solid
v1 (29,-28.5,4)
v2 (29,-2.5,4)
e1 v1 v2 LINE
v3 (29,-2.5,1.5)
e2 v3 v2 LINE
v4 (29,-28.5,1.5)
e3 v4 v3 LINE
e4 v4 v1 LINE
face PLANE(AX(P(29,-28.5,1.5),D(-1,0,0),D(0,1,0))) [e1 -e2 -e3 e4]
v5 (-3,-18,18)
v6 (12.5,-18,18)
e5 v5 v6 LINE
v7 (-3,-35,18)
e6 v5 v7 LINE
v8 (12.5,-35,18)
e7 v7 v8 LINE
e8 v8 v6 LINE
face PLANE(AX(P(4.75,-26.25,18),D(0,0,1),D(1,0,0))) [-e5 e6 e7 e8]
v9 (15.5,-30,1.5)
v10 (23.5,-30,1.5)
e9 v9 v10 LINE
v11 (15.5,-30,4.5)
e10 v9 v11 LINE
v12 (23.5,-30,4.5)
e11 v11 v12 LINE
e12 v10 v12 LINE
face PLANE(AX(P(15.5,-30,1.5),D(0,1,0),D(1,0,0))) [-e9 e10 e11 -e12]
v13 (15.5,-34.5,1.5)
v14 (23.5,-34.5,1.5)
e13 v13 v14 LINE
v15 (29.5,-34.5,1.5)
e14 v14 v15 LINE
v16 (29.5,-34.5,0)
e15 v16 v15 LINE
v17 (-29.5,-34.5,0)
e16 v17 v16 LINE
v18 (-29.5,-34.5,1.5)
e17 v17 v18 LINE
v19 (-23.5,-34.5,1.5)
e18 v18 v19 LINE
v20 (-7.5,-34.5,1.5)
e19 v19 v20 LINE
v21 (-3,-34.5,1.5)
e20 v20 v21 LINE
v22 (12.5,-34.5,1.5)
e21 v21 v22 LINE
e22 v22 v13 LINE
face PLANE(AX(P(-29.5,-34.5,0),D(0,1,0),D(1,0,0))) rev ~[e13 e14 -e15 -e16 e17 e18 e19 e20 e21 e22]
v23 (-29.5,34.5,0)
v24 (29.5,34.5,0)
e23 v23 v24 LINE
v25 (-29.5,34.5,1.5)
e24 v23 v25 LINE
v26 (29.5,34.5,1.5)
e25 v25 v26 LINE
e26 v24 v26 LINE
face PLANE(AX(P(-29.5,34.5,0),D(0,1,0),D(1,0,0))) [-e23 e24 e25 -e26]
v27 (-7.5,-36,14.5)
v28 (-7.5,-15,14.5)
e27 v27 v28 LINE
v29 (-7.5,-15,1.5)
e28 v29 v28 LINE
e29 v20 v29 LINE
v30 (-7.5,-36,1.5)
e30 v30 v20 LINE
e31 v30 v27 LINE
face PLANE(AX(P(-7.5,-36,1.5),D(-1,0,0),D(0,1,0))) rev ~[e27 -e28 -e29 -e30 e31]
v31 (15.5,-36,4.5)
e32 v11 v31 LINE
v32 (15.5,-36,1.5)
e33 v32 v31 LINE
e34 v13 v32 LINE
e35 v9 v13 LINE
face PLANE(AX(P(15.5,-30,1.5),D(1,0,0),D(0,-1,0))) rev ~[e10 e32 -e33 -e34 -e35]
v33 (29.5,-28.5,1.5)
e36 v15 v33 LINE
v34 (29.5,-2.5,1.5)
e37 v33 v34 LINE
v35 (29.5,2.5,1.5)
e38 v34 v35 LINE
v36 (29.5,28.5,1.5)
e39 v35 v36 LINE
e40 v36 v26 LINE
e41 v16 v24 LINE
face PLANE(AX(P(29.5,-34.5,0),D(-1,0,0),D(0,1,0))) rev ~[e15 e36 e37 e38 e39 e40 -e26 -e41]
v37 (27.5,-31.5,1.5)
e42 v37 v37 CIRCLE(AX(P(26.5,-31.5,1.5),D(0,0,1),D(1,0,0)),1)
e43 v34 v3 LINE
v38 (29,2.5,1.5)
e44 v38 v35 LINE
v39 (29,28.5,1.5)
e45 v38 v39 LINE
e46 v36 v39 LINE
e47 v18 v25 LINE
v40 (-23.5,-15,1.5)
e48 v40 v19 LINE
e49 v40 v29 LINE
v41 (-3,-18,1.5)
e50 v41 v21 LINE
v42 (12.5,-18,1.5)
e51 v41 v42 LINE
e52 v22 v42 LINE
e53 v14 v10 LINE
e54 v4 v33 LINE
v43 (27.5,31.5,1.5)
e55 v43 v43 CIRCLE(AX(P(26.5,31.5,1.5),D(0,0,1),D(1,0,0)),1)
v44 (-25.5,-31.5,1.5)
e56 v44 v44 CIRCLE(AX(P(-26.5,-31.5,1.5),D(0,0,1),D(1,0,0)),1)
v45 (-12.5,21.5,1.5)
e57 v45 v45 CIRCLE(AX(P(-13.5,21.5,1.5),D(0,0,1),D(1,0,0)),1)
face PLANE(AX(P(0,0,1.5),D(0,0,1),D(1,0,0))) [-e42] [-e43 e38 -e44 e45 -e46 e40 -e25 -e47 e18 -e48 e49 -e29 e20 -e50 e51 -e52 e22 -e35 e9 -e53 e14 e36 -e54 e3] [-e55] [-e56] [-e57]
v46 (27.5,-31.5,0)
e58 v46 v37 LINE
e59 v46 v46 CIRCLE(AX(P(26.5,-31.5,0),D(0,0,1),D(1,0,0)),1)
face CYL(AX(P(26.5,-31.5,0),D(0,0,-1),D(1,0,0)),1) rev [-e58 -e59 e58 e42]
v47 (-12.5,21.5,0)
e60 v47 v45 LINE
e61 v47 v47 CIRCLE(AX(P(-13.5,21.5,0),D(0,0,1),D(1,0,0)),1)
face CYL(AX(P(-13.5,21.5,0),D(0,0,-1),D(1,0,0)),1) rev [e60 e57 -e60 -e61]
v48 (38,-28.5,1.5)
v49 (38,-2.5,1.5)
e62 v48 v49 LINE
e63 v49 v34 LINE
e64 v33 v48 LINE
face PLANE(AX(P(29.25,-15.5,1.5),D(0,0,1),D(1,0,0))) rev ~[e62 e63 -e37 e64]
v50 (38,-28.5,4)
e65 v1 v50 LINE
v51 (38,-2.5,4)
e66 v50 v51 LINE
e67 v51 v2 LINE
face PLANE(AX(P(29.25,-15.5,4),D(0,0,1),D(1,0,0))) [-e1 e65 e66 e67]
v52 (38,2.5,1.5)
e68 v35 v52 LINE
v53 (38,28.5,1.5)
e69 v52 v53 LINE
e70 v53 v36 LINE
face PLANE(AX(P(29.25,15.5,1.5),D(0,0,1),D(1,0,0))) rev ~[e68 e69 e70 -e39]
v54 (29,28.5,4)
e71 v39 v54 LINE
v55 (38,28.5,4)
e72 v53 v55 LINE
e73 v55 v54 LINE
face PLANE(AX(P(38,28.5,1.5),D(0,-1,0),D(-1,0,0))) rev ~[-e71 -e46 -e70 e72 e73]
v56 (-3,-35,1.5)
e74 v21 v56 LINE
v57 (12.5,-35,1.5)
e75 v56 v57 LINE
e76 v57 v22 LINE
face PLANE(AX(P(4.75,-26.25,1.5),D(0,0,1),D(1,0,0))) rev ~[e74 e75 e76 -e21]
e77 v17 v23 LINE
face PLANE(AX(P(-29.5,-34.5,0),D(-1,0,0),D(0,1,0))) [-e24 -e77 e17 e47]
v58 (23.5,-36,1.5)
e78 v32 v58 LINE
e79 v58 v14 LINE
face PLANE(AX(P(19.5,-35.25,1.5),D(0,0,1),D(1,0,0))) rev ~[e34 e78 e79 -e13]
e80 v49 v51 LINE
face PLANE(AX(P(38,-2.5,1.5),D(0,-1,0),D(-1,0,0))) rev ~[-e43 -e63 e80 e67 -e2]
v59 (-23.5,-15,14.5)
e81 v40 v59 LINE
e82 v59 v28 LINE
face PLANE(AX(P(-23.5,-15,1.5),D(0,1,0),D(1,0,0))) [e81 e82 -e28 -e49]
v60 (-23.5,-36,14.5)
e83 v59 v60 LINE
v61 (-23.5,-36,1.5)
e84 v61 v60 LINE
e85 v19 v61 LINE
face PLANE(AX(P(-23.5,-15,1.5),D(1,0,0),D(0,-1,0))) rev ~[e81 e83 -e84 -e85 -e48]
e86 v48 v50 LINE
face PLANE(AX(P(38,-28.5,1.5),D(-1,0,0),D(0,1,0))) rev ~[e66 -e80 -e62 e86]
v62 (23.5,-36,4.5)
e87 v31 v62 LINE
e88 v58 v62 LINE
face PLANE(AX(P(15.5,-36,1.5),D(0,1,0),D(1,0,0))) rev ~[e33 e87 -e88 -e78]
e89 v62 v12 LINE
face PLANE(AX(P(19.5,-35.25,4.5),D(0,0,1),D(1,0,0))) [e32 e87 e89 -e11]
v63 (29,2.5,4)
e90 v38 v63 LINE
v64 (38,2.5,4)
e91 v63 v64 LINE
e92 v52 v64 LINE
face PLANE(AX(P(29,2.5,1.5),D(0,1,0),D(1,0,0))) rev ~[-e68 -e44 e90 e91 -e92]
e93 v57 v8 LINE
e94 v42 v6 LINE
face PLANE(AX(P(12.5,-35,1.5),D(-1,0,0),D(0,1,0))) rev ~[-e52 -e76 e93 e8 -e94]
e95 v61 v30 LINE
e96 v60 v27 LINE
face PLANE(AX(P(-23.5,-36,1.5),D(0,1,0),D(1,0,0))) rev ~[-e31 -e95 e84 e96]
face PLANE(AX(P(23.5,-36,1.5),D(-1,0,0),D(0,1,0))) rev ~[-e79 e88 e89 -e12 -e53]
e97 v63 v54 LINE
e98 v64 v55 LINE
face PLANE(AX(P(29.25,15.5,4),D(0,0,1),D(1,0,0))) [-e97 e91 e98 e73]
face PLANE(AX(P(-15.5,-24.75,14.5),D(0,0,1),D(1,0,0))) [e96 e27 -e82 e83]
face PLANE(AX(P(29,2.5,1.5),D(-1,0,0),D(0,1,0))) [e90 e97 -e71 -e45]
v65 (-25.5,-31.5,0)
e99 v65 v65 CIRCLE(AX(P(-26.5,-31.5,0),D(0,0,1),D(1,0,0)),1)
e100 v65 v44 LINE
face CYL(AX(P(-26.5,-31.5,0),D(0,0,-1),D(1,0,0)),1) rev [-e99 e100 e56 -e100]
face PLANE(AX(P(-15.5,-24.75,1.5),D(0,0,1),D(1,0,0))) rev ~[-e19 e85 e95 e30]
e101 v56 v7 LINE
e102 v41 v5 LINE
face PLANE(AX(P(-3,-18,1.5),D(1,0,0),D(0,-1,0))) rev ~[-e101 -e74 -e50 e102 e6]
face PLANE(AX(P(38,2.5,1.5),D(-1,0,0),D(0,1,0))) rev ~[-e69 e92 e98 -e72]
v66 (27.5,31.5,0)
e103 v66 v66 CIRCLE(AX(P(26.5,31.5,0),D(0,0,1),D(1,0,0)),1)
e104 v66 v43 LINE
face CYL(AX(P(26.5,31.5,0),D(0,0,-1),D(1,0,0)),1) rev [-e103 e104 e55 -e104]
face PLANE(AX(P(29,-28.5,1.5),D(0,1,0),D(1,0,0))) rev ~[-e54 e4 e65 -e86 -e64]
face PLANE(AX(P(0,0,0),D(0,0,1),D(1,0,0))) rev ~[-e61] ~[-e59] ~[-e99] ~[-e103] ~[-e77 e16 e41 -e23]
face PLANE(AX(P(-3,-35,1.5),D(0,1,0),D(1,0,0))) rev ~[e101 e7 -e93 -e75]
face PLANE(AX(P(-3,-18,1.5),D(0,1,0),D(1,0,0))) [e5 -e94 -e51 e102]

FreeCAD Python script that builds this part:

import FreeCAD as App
import Part
import Sketcher

V = App.Vector
Q = App.Units.Quantity

doc = App.newDocument("Part")
body = doc.addObject("PartDesign::Body", "Body")

# Sketch on XY plane
sketch1 = body.newObject("Sketcher::SketchObject", "Sketch")
sketch1.AttachmentSupport = (doc.getObject("XY_Plane"), [""])
sketch1.MapMode = "FlatFace"
sketch1.addGeometry([
    Part.LineSegment(V(-29.5, 34.5, 0), V(-29.5, -34.5, 0)),  # 0
    Part.LineSegment(V(-29.5, -34.5, 0), V(29.5, -34.5, 0)),  # 1
    Part.LineSegment(V(29.5, -34.5, 0), V(29.5, 34.5, 0)),  # 2
    Part.LineSegment(V(29.5, 34.5, 0), V(-29.5, 34.5, 0)),  # 3
    Part.Circle(V(-26.5, -31.5, 0), V(0, 0, 1), 1),  # 4
    Part.Circle(V(26.5, -31.5, 0), V(0, 0, 1), 1),  # 5
    Part.Circle(V(-13.5, 21.5, 0), V(0, 0, 1), 1),  # 6
    Part.Circle(V(26.5, 31.5, 0), V(0, 0, 1), 1),  # 7
], False)
sketch1.addConstraint([
    Sketcher.Constraint("Coincident", 0, 2, 1, 1),
    Sketcher.Constraint("Coincident", 1, 2, 2, 1),
    Sketcher.Constraint("Coincident", 2, 2, 3, 1),
    Sketcher.Constraint("Coincident", 3, 2, 0, 1),
    Sketcher.Constraint("Vertical", 0),
    Sketcher.Constraint("Horizontal", 1),
    Sketcher.Constraint("Vertical", 2),
    Sketcher.Constraint("Horizontal", 3),
    Sketcher.Constraint("Equal", 4, 5),
    Sketcher.Constraint("Equal", 5, 6),
    Sketcher.Constraint("Equal", 6, 7),
    Sketcher.Constraint("Symmetric", 4, 3, 7, 3, -1, 1),
    Sketcher.Constraint("Symmetric", 0, 2, 2, 2, -1, 1),
    Sketcher.Constraint("Symmetric", 4, 3, 5, 3, -2),
    Sketcher.Constraint("Diameter", 4, Q("2 mm")),
    Sketcher.Constraint("DistanceX", 1, 1, 1, 2, Q("59 mm")),
    Sketcher.Constraint("DistanceY", 0, 2, 0, 1, Q("69 mm")),
    Sketcher.Constraint("DistanceX", 4, 3, 5, 3, Q("53 mm")),
    Sketcher.Constraint("DistanceX", 4, 3, 6, 3, Q("13 mm")),
    Sketcher.Constraint("DistanceY", 4, 3, 6, 3, Q("53 mm")),
    Sketcher.Constraint("DistanceY", 6, 3, 7, 3, Q("10 mm")),
])
pad1 = body.newObject("PartDesign::Pad", "Pad")
pad1.Profile = sketch1
pad1.Length = 1.5

# Sketch on XY plane
sketch2 = body.newObject("Sketcher::SketchObject", "Sketch001")
sketch2.AttachmentSupport = (doc.getObject("XY_Plane"), [""])
sketch2.MapMode = "FlatFace"
sketch2.AttachmentOffset = App.Placement(V(0, 0, 1.5), App.Rotation())
sketch2.addGeometry([
    Part.LineSegment(V(16, -36, 0), V(24, -36, 0)),
    Part.LineSegment(V(24, -36, 0), V(24, -30, 0)),
    Part.LineSegment(V(24, -30, 0), V(16, -30, 0)),
    Part.LineSegment(V(16, -30, 0), V(16, -36, 0)),
], False)
sketch2.addConstraint([
    Sketcher.Constraint("Coincident", 0, 2, 1, 1),
    Sketcher.Constraint("Coincident", 1, 2, 2, 1),
    Sketcher.Constraint("Coincident", 2, 2, 3, 1),
    Sketcher.Constraint("Coincident", 3, 2, 0, 1),
    Sketcher.Constraint("Horizontal", 0),
    Sketcher.Constraint("Vertical", 1),
    Sketcher.Constraint("Horizontal", 2),
    Sketcher.Constraint("Vertical", 3),
    Sketcher.Constraint("DistanceX", 0, 1, 0, 2, Q("8 mm")),
    Sketcher.Constraint("DistanceY", 1, 1, 1, 2, Q("6 mm")),
    Sketcher.Constraint("DistanceY", 0, 2, -1, 1, Q("36 mm")),
    Sketcher.Constraint("DistanceX", -1, 1, 0, 2, Q("23.5 mm")),
])
pad2 = body.newObject("PartDesign::Pad", "Pad001")
pad2.Profile = sketch2
pad2.Length = 3

# Sketch on XY plane
sketch3 = body.newObject("Sketcher::SketchObject", "Sketch002")
sketch3.AttachmentSupport = (doc.getObject("XY_Plane"), [""])
sketch3.MapMode = "FlatFace"
sketch3.AttachmentOffset = App.Placement(V(0, 0, 1.5), App.Rotation())
sketch3.addGeometry([
    Part.LineSegment(V(-3, -18, 0), V(-3, -35, 0)),
    Part.LineSegment(V(-3, -35, 0), V(12, -35, 0)),
    Part.LineSegment(V(12, -35, 0), V(12, -18, 0)),
    Part.LineSegment(V(12, -18, 0), V(-3, -18, 0)),
], False)
sketch3.addConstraint([
    Sketcher.Constraint("Coincident", 0, 2, 1, 1),
    Sketcher.Constraint("Coincident", 1, 2, 2, 1),
    Sketcher.Constraint("Coincident", 2, 2, 3, 1),
    Sketcher.Constraint("Coincident", 3, 2, 0, 1),
    Sketcher.Constraint("Vertical", 0),
    Sketcher.Constraint("Horizontal", 1),
    Sketcher.Constraint("Vertical", 2),
    Sketcher.Constraint("Horizontal", 3),
    Sketcher.Constraint("DistanceY", 0, 2, 0, 1, Q("17 mm")),
    Sketcher.Constraint("DistanceX", 1, 1, 1, 2, Q("15.5 mm")),
    Sketcher.Constraint("DistanceX", 0, 2, -1, 1, Q("3 mm")),
    Sketcher.Constraint("DistanceY", 0, 2, -1, 1, Q("35 mm")),
])
pad3 = body.newObject("PartDesign::Pad", "Pad002")
pad3.Profile = sketch3
pad3.Length = 16.5

# Sketch on XY plane
sketch4 = body.newObject("Sketcher::SketchObject", "Sketch003")
sketch4.AttachmentSupport = (doc.getObject("XY_Plane"), [""])
sketch4.MapMode = "FlatFace"
sketch4.AttachmentOffset = App.Placement(V(0, 0, 1.5), App.Rotation())
sketch4.addGeometry([
    Part.LineSegment(V(-24, -15, 0), V(-24, -36, 0)),
    Part.LineSegment(V(-24, -36, 0), V(-8, -36, 0)),
    Part.LineSegment(V(-8, -36, 0), V(-8, -15, 0)),
    Part.LineSegment(V(-8, -15, 0), V(-24, -15, 0)),
], False)
sketch4.addConstraint([
    Sketcher.Constraint("Coincident", 0, 2, 1, 1),
    Sketcher.Constraint("Coincident", 1, 2, 2, 1),
    Sketcher.Constraint("Coincident", 2, 2, 3, 1),
    Sketcher.Constraint("Coincident", 3, 2, 0, 1),
    Sketcher.Constraint("Vertical", 0),
    Sketcher.Constraint("Horizontal", 1),
    Sketcher.Constraint("Vertical", 2),
    Sketcher.Constraint("Horizontal", 3),
    Sketcher.Constraint("DistanceX", 1, 1, 1, 2, Q("16 mm")),
    Sketcher.Constraint("DistanceY", 0, 2, 0, 1, Q("21 mm")),
    Sketcher.Constraint("DistanceY", 0, 2, -1, 1, Q("36 mm")),
    Sketcher.Constraint("DistanceX", 0, 2, -1, 1, Q("23.5 mm")),
])
pad4 = body.newObject("PartDesign::Pad", "Pad003")
pad4.Profile = sketch4
pad4.Length = 13

# Sketch on XY plane
sketch5 = body.newObject("Sketcher::SketchObject", "Sketch004")
sketch5.AttachmentSupport = (doc.getObject("XY_Plane"), [""])
sketch5.MapMode = "FlatFace"
sketch5.AttachmentOffset = App.Placement(V(0, 0, 1.5), App.Rotation())
sketch5.addGeometry([
    Part.LineSegment(V(29, 28, 0), V(29, 2, 0)),  # 0
    Part.LineSegment(V(29, 2, 0), V(38, 2, 0)),  # 1
    Part.LineSegment(V(38, 2, 0), V(38, 28, 0)),  # 2
    Part.LineSegment(V(38, 28, 0), V(29, 28, 0)),  # 3
    Part.LineSegment(V(29, -2, 0), V(29, -28, 0)),  # 4
    Part.LineSegment(V(29, -28, 0), V(38, -28, 0)),  # 5
    Part.LineSegment(V(38, -28, 0), V(38, -2, 0)),  # 6
    Part.LineSegment(V(38, -2, 0), V(29, -2, 0)),  # 7
], False)
sketch5.addConstraint([
    Sketcher.Constraint("Coincident", 0, 2, 1, 1),
    Sketcher.Constraint("Coincident", 1, 2, 2, 1),
    Sketcher.Constraint("Coincident", 2, 2, 3, 1),
    Sketcher.Constraint("Coincident", 3, 2, 0, 1),
    Sketcher.Constraint("Coincident", 4, 2, 5, 1),
    Sketcher.Constraint("Coincident", 5, 2, 6, 1),
    Sketcher.Constraint("Coincident", 6, 2, 7, 1),
    Sketcher.Constraint("Coincident", 7, 2, 4, 1),
    Sketcher.Constraint("Vertical", 0),
    Sketcher.Constraint("Horizontal", 1),
    Sketcher.Constraint("Vertical", 2),
    Sketcher.Constraint("Horizontal", 3),
    Sketcher.Constraint("Vertical", 4),
    Sketcher.Constraint("Horizontal", 5),
    Sketcher.Constraint("Vertical", 6),
    Sketcher.Constraint("Horizontal", 7),
    Sketcher.Constraint("Symmetric", 3, 2, 4, 2, -1),
    Sketcher.Constraint("Symmetric", 1, 2, 6, 2, -1),
    Sketcher.Constraint("DistanceX", 1, 1, 1, 2, Q("9 mm")),
    Sketcher.Constraint("DistanceY", 0, 2, 0, 1, Q("26 mm")),
    Sketcher.Constraint("DistanceX", -1, 1, 0, 2, Q("29 mm")),
    Sketcher.Constraint("DistanceY", 4, 2, 0, 2, Q("31 mm")),
])
pad5 = body.newObject("PartDesign::Pad", "Pad004")
pad5.Profile = sketch5
pad5.Length = 2.5

doc.recompute()
